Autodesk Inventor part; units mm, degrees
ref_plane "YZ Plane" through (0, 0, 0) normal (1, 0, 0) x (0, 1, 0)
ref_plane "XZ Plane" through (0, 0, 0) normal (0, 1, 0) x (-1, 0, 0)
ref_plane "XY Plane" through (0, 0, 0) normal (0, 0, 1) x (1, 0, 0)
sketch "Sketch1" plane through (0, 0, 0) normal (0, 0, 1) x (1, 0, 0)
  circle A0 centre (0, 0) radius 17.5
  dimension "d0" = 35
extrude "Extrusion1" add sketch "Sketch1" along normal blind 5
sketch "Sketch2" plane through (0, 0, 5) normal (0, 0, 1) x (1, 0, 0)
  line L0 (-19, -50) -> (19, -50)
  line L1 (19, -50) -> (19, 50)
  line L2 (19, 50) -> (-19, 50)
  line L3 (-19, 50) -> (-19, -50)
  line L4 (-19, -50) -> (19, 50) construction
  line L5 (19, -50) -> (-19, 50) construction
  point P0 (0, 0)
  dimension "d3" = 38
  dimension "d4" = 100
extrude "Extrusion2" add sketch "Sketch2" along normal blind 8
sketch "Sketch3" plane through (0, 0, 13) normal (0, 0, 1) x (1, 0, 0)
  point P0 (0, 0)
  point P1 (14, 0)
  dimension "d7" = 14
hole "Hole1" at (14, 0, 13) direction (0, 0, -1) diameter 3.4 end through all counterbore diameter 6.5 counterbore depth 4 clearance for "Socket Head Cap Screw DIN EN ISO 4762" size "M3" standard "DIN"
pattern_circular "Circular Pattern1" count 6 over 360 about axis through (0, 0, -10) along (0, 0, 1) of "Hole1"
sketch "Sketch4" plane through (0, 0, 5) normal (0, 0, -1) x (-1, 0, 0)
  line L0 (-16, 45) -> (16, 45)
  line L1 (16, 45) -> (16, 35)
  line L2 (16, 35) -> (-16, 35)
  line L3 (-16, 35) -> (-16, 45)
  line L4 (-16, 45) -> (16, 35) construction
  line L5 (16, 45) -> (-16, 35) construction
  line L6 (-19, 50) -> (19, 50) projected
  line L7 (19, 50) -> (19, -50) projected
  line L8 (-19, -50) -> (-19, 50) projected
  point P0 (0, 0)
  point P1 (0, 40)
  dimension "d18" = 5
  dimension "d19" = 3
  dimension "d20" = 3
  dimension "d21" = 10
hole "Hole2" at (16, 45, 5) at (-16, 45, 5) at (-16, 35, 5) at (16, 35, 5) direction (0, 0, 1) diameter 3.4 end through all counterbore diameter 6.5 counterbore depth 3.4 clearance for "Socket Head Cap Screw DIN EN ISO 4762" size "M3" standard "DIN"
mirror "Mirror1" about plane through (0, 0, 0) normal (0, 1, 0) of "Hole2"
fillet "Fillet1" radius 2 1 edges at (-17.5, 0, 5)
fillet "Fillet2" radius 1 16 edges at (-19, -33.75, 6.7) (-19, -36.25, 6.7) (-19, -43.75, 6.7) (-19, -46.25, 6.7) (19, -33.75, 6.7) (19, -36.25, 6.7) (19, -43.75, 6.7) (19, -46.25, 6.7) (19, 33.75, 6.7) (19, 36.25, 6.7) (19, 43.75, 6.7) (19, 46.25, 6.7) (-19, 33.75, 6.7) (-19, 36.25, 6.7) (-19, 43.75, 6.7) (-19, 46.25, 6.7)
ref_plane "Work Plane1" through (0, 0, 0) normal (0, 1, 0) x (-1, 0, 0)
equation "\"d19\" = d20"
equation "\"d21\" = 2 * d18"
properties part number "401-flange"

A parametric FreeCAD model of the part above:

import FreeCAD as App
import Part
import Sketcher


def edges_at(feature, points):
    """Names of the edges that pass closest to the given points."""
    edges = feature.Shape.Edges
    near = lambda p: min(range(len(edges)), key=lambda i: edges[i].distToShape(Part.Vertex(*p))[0])
    return sorted({f"Edge{near(p) + 1}" for p in points})

doc = App.newDocument("Part")
body = doc.addObject("PartDesign::Body", "Body")

sketch1 = body.newObject("Sketcher::SketchObject", "Sketch")
sketch1.AttachmentSupport = (doc.getObject("XY_Plane"), [""])
sketch1.MapMode = "FlatFace"
sketch1.addGeometry(Part.Circle(App.Vector(0, 0, 0), App.Vector(0, 0, 1), 17.5), False)
sketch1.addConstraint([
    Sketcher.Constraint("Coincident", 0, 3, -1, 1),
    Sketcher.Constraint("Diameter", 0, 35.0),
])
pad1 = body.newObject("PartDesign::Pad", "Pad")
pad1.Profile = sketch1
pad1.Length = 5

sketch2 = body.newObject("Sketcher::SketchObject", "Sketch001")
sketch2.AttachmentSupport = (doc.getObject("XY_Plane"), [""])
sketch2.MapMode = "FlatFace"
sketch2.AttachmentOffset = App.Placement(App.Vector(0, 0, 5), App.Rotation())
sketch2.addGeometry([
    Part.LineSegment(App.Vector(-19, 50, 0), App.Vector(-19, -50, 0)),
    Part.LineSegment(App.Vector(-19, -50, 0), App.Vector(19, -50, 0)),
    Part.LineSegment(App.Vector(19, -50, 0), App.Vector(19, 50, 0)),
    Part.LineSegment(App.Vector(19, 50, 0), App.Vector(-19, 50, 0)),
], False)
sketch2.addConstraint([
    Sketcher.Constraint("Coincident", 0, 2, 1, 1),
    Sketcher.Constraint("Coincident", 1, 2, 2, 1),
    Sketcher.Constraint("Coincident", 2, 2, 3, 1),
    Sketcher.Constraint("Coincident", 3, 2, 0, 1),
    Sketcher.Constraint("Vertical", 0),
    Sketcher.Constraint("Horizontal", 1),
    Sketcher.Constraint("Vertical", 2),
    Sketcher.Constraint("Horizontal", 3),
    Sketcher.Constraint("Symmetric", 0, 2, 2, 2, -1, 1),
    Sketcher.Constraint("DistanceX", 1, 1, 1, 2, 38.0),
    Sketcher.Constraint("DistanceY", 0, 2, 0, 1, 100.0),
])
pad2 = body.newObject("PartDesign::Pad", "Pad001")
pad2.Profile = sketch2
pad2.Length = 8

sketch3 = body.newObject("Sketcher::SketchObject", "Sketch002")
sketch3.AttachmentSupport = (doc.getObject("XY_Plane"), [""])
sketch3.MapMode = "FlatFace"
sketch3.AttachmentOffset = App.Placement(App.Vector(0, 0, 13), App.Rotation())
sketch3.addGeometry(Part.Circle(App.Vector(14, 0, 0), App.Vector(0, 0, 1), 1.7), False)
sketch3.addConstraint([
    Sketcher.Constraint("PointOnObject", 0, 3, -1),
    Sketcher.Constraint("Diameter", 0, 3.4),
    Sketcher.Constraint("DistanceX", -1, 1, 0, 3, 14.0),
])
doc.recompute()
hole = body.newObject("PartDesign::Hole", "Hole")
hole.Profile = sketch3
hole.ThreadType = "None"
hole.Diameter = 3.4
hole.DepthType = "ThroughAll"
hole.HoleCutType = "Counterbore"
hole.HoleCutDiameter = 6.5
hole.HoleCutDepth = 4
doc.recompute()

polarpattern = body.newObject("PartDesign::PolarPattern", "PolarPattern")
polarpattern.Originals = [hole]
polarpattern.Axis = (doc.getObject("Z_Axis"), [""])
polarpattern.Angle = 360
polarpattern.Occurrences = 6
body.Tip = polarpattern

sketch4 = body.newObject("Sketcher::SketchObject", "Sketch003")
sketch4.AttachmentSupport = (doc.getObject("XY_Plane"), [""])
sketch4.MapMode = "FlatFace"
sketch4.AttachmentOffset = App.Placement(App.Vector(0, 0, 5), App.Rotation())
sketch4.addGeometry([
    Part.Circle(App.Vector(16, 45, 0), App.Vector(0, 0, 1), 1.7),
    Part.Circle(App.Vector(-16, 45, 0), App.Vector(0, 0, 1), 1.7),
    Part.Circle(App.Vector(-16, 35, 0), App.Vector(0, 0, 1), 1.7),
    Part.Circle(App.Vector(16, 35, 0), App.Vector(0, 0, 1), 1.7),
], False)
sketch4.addConstraint([
    Sketcher.Constraint("Equal", 0, 1),
    Sketcher.Constraint("Equal", 1, 2),
    Sketcher.Constraint("Equal", 2, 3),
    Sketcher.Constraint("Symmetric", 0, 3, 1, 3, -2),
    Sketcher.Constraint("Symmetric", 2, 3, 3, 3, -2),
    Sketcher.Constraint("Vertical", 1, 3, 2, 3),
    Sketcher.Constraint("Diameter", 0, 3.4),
    Sketcher.Constraint("DistanceX", -1, 1, 0, 3, 16.0),
    Sketcher.Constraint("DistanceY", -1, 1, 0, 3, 45.0),
    Sketcher.Constraint("DistanceY", -1, 1, 2, 3, 35.0),
])
doc.recompute()
hole2 = body.newObject("PartDesign::Hole", "Hole001")
hole2.Profile = sketch4
hole2.ThreadType = "None"
hole2.Diameter = 3.4
hole2.DepthType = "ThroughAll"
hole2.HoleCutType = "Counterbore"
hole2.HoleCutDiameter = 6.5
hole2.HoleCutDepth = 3.4
hole2.Reversed = True
doc.recompute()

mirrored = body.newObject("PartDesign::Mirrored", "Mirrored")
mirrored.Originals = [hole2]
mirrored.MirrorPlane = (doc.getObject("XZ_Plane"), [""])
body.Tip = mirrored
doc.recompute()

fillet = body.newObject("PartDesign::Fillet", "Fillet")
fillet.Base = (mirrored, edges_at(mirrored, [(-17.5, 0, 5)]))
fillet.Radius = 2
doc.recompute()

fillet2 = body.newObject("PartDesign::Fillet", "Fillet001")
fillet2.Base = (fillet, edges_at(fillet, [
    (-19, -33.75, 6.7),
    (-19, -36.25, 6.7),
    (-19, -43.75, 6.7),
    (-19, -46.25, 6.7),
    (19, -33.75, 6.7),
    (19, -36.25, 6.7),
    (19, -43.75, 6.7),
    (19, -46.25, 6.7),
    (19, 33.75, 6.7),
    (19, 36.25, 6.7),
    (19, 43.75, 6.7),
    (19, 46.25, 6.7),
    (-19, 33.75, 6.7),
    (-19, 36.25, 6.7),
    (-19, 43.75, 6.7),
    (-19, 46.25, 6.7),
]))
fillet2.Radius = 1

doc.recompute()
